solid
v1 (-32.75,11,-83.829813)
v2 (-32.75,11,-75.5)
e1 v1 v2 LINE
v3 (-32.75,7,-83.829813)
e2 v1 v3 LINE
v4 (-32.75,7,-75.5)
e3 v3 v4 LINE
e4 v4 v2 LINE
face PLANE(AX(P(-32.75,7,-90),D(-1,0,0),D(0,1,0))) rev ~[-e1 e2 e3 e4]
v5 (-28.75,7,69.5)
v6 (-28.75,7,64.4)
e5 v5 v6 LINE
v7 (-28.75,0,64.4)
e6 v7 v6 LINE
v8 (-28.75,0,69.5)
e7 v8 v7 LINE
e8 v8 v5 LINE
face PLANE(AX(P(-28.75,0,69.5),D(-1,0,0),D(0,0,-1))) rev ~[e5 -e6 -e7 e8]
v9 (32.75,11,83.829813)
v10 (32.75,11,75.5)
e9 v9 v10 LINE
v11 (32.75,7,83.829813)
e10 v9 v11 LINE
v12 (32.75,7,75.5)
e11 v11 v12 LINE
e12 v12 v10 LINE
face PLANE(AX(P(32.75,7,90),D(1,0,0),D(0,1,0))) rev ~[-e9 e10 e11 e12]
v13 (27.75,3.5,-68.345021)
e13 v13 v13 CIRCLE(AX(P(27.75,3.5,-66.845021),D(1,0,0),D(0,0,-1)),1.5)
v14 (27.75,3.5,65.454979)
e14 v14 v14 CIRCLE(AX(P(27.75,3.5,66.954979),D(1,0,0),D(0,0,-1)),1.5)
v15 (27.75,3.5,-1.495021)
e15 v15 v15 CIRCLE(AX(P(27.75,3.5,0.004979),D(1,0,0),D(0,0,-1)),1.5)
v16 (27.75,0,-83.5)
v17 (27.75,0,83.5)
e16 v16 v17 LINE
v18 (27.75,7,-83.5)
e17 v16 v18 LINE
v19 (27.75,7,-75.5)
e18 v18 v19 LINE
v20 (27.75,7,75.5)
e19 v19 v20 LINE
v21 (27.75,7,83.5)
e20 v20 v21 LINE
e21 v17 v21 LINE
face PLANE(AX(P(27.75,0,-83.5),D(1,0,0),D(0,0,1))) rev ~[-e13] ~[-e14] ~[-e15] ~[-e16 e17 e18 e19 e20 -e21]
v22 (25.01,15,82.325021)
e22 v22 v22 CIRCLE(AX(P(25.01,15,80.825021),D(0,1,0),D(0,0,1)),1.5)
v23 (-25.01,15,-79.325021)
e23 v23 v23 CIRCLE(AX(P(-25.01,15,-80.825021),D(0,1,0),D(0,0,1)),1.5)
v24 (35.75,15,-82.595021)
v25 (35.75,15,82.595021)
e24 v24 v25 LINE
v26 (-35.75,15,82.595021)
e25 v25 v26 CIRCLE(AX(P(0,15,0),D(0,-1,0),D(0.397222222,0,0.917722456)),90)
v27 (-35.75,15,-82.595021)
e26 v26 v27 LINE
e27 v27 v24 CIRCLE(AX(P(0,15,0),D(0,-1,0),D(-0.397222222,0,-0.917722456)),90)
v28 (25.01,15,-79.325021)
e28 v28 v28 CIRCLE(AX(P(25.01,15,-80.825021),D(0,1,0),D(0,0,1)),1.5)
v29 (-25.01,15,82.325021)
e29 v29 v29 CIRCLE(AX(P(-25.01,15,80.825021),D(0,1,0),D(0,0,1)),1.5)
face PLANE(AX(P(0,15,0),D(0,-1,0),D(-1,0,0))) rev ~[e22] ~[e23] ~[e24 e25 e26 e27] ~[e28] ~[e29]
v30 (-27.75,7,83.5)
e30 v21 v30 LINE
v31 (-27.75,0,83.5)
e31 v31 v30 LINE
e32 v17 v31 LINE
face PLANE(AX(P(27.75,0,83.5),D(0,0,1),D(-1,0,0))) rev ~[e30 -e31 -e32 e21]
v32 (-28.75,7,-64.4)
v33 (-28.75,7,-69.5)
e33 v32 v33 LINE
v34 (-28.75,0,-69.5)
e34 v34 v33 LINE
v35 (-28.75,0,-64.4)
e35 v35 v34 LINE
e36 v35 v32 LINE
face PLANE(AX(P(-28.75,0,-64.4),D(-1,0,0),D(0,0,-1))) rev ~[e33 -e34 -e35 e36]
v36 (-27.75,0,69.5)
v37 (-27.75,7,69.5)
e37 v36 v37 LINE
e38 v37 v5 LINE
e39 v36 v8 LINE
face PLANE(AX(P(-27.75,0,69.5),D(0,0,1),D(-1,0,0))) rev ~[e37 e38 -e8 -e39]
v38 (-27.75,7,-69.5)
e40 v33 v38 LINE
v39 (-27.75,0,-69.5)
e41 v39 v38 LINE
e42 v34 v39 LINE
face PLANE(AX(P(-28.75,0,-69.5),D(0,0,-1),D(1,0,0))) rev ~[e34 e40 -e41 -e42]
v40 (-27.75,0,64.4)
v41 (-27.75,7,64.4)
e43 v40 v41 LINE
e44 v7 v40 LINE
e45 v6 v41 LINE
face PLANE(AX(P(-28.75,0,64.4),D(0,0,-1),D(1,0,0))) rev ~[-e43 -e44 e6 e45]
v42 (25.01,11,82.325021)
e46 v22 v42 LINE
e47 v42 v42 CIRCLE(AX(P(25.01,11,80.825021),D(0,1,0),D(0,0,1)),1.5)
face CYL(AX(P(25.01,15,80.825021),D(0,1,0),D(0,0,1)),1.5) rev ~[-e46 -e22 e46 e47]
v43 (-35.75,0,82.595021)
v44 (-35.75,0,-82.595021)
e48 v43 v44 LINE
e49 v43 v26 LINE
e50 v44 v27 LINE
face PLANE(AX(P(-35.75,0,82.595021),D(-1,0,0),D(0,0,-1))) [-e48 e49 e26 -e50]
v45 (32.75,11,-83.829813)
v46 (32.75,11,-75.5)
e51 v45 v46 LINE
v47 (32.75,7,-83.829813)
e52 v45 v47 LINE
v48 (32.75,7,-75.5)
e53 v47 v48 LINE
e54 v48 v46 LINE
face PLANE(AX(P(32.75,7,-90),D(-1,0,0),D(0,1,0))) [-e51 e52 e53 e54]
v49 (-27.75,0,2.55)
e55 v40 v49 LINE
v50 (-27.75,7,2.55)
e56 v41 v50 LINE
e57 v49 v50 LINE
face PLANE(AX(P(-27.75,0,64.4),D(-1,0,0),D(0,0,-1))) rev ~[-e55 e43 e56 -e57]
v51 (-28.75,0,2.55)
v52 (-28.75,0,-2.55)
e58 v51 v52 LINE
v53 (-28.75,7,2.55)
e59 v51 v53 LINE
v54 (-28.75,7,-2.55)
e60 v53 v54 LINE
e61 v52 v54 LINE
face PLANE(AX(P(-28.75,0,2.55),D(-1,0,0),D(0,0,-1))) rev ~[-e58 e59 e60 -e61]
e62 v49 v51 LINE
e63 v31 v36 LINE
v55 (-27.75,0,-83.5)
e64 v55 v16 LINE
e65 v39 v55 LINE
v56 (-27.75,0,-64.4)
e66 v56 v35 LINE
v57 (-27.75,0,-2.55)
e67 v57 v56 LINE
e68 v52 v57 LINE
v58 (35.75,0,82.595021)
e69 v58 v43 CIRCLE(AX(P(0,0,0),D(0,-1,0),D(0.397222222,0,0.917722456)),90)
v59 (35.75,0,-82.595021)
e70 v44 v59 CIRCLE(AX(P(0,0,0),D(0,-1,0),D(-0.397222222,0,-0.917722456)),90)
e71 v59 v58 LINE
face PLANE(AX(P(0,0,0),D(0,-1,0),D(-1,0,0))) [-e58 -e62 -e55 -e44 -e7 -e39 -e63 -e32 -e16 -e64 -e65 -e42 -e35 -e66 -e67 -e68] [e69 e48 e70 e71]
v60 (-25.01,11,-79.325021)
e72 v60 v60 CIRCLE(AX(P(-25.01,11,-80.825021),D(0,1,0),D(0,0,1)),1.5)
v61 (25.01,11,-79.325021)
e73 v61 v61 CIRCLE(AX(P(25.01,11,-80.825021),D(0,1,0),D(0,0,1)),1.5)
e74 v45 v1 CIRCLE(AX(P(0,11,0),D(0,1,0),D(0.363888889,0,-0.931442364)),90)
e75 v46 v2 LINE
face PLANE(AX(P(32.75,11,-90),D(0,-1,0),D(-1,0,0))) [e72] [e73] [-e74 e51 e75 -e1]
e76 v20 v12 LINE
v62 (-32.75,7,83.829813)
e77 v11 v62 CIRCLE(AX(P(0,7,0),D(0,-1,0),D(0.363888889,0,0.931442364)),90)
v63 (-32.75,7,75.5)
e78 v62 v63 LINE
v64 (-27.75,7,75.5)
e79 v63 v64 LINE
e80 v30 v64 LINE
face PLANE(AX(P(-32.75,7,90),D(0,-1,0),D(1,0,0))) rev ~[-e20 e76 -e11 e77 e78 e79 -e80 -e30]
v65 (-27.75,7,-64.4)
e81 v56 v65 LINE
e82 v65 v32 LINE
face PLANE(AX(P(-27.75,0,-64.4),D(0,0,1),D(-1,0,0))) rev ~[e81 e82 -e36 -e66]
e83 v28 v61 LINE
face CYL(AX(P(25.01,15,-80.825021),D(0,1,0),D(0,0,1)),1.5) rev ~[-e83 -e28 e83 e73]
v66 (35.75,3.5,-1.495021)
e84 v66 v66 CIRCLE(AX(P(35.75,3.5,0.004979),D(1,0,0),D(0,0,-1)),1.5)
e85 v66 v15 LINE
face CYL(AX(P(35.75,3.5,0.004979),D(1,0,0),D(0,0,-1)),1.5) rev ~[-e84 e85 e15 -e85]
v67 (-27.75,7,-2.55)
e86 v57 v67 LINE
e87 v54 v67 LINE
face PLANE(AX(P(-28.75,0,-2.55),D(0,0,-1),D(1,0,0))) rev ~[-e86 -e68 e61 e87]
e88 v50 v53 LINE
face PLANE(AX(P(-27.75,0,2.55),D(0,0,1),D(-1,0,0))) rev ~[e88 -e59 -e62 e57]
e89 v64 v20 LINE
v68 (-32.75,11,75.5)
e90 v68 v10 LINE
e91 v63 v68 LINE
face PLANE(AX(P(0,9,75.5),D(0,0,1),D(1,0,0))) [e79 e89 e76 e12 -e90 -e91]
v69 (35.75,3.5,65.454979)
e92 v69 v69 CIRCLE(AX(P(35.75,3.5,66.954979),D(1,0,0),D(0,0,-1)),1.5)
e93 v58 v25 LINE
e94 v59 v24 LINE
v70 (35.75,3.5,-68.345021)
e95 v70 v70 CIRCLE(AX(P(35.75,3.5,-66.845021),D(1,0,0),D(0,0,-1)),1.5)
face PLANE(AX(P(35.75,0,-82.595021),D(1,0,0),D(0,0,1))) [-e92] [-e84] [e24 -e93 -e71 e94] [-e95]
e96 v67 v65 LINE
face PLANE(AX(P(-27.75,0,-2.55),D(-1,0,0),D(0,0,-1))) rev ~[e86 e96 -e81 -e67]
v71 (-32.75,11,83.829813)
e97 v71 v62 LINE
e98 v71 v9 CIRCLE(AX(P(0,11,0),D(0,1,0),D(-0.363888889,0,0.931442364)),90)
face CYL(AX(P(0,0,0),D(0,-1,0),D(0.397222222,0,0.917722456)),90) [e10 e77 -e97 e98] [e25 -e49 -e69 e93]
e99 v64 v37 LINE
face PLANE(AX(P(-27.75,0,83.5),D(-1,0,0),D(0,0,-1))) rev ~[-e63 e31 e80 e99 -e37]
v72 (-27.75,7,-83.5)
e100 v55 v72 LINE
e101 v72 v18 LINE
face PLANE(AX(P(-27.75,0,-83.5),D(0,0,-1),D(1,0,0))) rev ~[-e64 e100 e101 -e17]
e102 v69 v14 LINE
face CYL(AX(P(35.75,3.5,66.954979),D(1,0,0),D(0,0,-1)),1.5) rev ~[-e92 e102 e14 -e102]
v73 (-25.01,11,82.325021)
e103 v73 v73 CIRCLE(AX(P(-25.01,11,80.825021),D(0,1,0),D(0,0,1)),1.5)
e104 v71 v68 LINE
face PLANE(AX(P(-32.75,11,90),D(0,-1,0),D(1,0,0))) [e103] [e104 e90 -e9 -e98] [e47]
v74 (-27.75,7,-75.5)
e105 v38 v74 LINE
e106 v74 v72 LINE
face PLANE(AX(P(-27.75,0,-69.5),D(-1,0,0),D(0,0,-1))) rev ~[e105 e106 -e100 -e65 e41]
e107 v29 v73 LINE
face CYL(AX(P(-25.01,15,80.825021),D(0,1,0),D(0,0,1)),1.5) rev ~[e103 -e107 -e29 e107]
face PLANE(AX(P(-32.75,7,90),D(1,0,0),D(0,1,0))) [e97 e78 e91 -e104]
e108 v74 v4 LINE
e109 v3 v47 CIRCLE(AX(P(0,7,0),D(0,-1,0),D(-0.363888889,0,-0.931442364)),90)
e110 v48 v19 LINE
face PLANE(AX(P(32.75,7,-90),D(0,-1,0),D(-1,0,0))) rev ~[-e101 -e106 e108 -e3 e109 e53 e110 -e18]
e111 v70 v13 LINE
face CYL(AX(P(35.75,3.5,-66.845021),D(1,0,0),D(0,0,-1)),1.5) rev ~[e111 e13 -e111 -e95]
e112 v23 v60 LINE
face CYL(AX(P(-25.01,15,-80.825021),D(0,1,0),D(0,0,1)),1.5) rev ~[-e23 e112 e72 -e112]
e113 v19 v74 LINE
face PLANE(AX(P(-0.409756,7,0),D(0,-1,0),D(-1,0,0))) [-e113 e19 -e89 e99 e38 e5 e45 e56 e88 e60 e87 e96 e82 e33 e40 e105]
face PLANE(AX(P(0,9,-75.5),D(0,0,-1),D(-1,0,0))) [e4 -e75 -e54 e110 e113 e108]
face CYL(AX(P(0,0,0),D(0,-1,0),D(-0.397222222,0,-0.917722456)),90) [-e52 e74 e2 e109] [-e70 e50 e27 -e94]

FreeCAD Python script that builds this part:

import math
import FreeCAD as App
import Part
import Sketcher
from FreeCAD import Vector


def add_polygon(sketch, points):
    """Adds a closed chain of lines whose ends are joined by coincident constraints."""
    first, n = sketch.GeometryCount, len(points)
    for a, b in zip(points, points[1:] + points[:1]):
        sketch.addGeometry(Part.LineSegment(App.Vector(*a, 0), App.Vector(*b, 0)), False)
    for i in range(n):
        sketch.addConstraint(Sketcher.Constraint("Coincident", first + i, 2, first + (i + 1) % n, 1))

doc = App.newDocument("Part")
body = doc.addObject("PartDesign::Body", "Body")

# Sketch on XZ plane
sketch1 = body.newObject("Sketcher::SketchObject", "Sketch")
sketch1.AttachmentSupport = (doc.getObject("XZ_Plane"), [""])
sketch1.MapMode = "FlatFace"
sketch1.addGeometry(Part.LineSegment(Vector(-35.75, -82.595021, 0), Vector(-35.75, 82.595021, 0)), False)
sketch1.addGeometry(Part.ArcOfCircle(Part.Circle(Vector(0, 0, 0), Vector(0, 0, 1), 90), math.radians(66.595359), math.radians(113.404641)), False)
sketch1.addGeometry(Part.LineSegment(Vector(35.75, 82.595021, 0), Vector(35.75, -82.595021, 0)), False)
sketch1.addGeometry(Part.ArcOfCircle(Part.Circle(Vector(0, 0, 0), Vector(0, 0, 1), 90), math.radians(-113.404641), math.radians(-66.595359)), False)
sketch1.addConstraint(Sketcher.Constraint("Coincident", 0, 2, 1, 2))
sketch1.addConstraint(Sketcher.Constraint("Coincident", 1, 1, 2, 1))
sketch1.addConstraint(Sketcher.Constraint("Coincident", 2, 2, 3, 2))
sketch1.addConstraint(Sketcher.Constraint("Coincident", 3, 1, 0, 1))
sketch1.addConstraint(Sketcher.Constraint("Vertical", 0))
sketch1.addConstraint(Sketcher.Constraint("Vertical", 2))
sketch1.addConstraint(Sketcher.Constraint("Coincident", 1, 3, -1, 1))
sketch1.addConstraint(Sketcher.Constraint("Coincident", 3, 3, -1, 1))
sketch1.addConstraint(Sketcher.Constraint("Equal", 1, 3))
sketch1.addConstraint(Sketcher.Constraint("Horizontal", 0, 2, 1, 1))
sketch1.addConstraint(Sketcher.Constraint("Radius", 1, 90.0))
sketch1.addConstraint(Sketcher.Constraint("DistanceX", 0, 2, 1, 1, 71.5))
pad1 = body.newObject("PartDesign::Pad", "Pad")
pad1.Profile = sketch1
pad1.Length = 15
pad1.Reversed = True

# Sketch on XZ plane
sketch2 = body.newObject("Sketcher::SketchObject", "Sketch001")
sketch2.AttachmentSupport = (doc.getObject("XZ_Plane"), [""])
sketch2.MapMode = "FlatFace"
add_polygon(sketch2, [(-27.75, -69.5), (-27.75, -83.5), (27.75, -83.5), (27.75, 83.5), (-27.75, 83.5), (-27.75, 69.5), (-28.75, 69.5), (-28.75, 64.4), (-27.75, 64.4), (-27.75, 2.55), (-28.75, 2.55), (-28.75, -2.55), (-27.75, -2.55), (-27.75, -64.4), (-28.75, -64.4), (-28.75, -69.5)])  # lines 0-15
sketch2.addConstraint(Sketcher.Constraint("Vertical", 0))
sketch2.addConstraint(Sketcher.Constraint("Horizontal", 1))
sketch2.addConstraint(Sketcher.Constraint("Vertical", 2))
sketch2.addConstraint(Sketcher.Constraint("Horizontal", 3))
sketch2.addConstraint(Sketcher.Constraint("Vertical", 4))
sketch2.addConstraint(Sketcher.Constraint("Horizontal", 5))
sketch2.addConstraint(Sketcher.Constraint("Vertical", 6))
sketch2.addConstraint(Sketcher.Constraint("Horizontal", 7))
sketch2.addConstraint(Sketcher.Constraint("Vertical", 8))
sketch2.addConstraint(Sketcher.Constraint("Horizontal", 9))
sketch2.addConstraint(Sketcher.Constraint("Vertical", 10))
sketch2.addConstraint(Sketcher.Constraint("Horizontal", 11))
sketch2.addConstraint(Sketcher.Constraint("Vertical", 12))
sketch2.addConstraint(Sketcher.Constraint("Horizontal", 13))
sketch2.addConstraint(Sketcher.Constraint("Vertical", 14))
sketch2.addConstraint(Sketcher.Constraint("Horizontal", 15))
sketch2.addConstraint(Sketcher.Constraint("Symmetric", 0, 2, 2, 2, -1, 1))
sketch2.addConstraint(Sketcher.Constraint("Symmetric", 8, 2, 11, 2, -1))
sketch2.addConstraint(Sketcher.Constraint("Symmetric", 6, 2, 13, 2, -1))
sketch2.addConstraint(Sketcher.Constraint("Symmetric", 4, 2, 15, 2, -1))
sketch2.addConstraint(Sketcher.Constraint("Vertical", 4, 2, 7, 2))
sketch2.addConstraint(Sketcher.Constraint("Vertical", 6, 2, 9, 2))
sketch2.addConstraint(Sketcher.Constraint("Equal", 6, 10))
sketch2.addConstraint(Sketcher.Constraint("DistanceX", 5, 2, 5, 1, 1.0))
sketch2.addConstraint(Sketcher.Constraint("DistanceY", 0, 2, 0, 1, 14.0))
sketch2.addConstraint(Sketcher.Constraint("DistanceY", 2, 1, 2, 2, 167.0))
sketch2.addConstraint(Sketcher.Constraint("DistanceX", 1, 1, 1, 2, 55.5))
sketch2.addConstraint(Sketcher.Constraint("DistanceY", 6, 2, 6, 1, 5.1))
pocket1 = body.newObject("PartDesign::Pocket", "Pocket")
pocket1.Profile = sketch2
pocket1.Length = 7

# Sketch on XY plane
sketch3 = body.newObject("Sketcher::SketchObject", "Sketch002")
sketch3.AttachmentSupport = (doc.getObject("XY_Plane"), [""])
sketch3.MapMode = "FlatFace"
sketch3.AttachmentOffset = App.Placement(Vector(0, 0, -90), App.Rotation())
add_polygon(sketch3, [(32.75, 11), (32.75, 7), (-32.75, 7), (-32.75, 11)])  # lines 0-3
sketch3.addConstraint(Sketcher.Constraint("Vertical", 0))
sketch3.addConstraint(Sketcher.Constraint("Horizontal", 1))
sketch3.addConstraint(Sketcher.Constraint("Vertical", 2))
sketch3.addConstraint(Sketcher.Constraint("Horizontal", 3))
sketch3.addConstraint(Sketcher.Constraint("DistanceY", 0, 2, 0, 1, 4.0))
sketch3.addConstraint(Sketcher.Constraint("DistanceX", 1, 2, 1, 1, 65.5))
sketch3.addConstraint(Sketcher.Constraint("DistanceY", -1, 1, 0, 2, 7.0))
sketch3.addConstraint(Sketcher.Constraint("DistanceX", -1, 1, 0, 2, 32.75))
pocket2 = body.newObject("PartDesign::Pocket", "Pocket001")
pocket2.Profile = sketch3
pocket2.Length = 14.5
pocket2.Reversed = True

# Sketch on XY plane
sketch4 = body.newObject("Sketcher::SketchObject", "Sketch003")
sketch4.AttachmentSupport = (doc.getObject("XY_Plane"), [""])
sketch4.MapMode = "FlatFace"
sketch4.AttachmentOffset = App.Placement(Vector(0, 0, 90), App.Rotation())
add_polygon(sketch4, [(-32.75, 11), (-32.75, 7), (32.75, 7), (32.75, 11)])  # lines 0-3
sketch4.addConstraint(Sketcher.Constraint("Vertical", 0))
sketch4.addConstraint(Sketcher.Constraint("Horizontal", 1))
sketch4.addConstraint(Sketcher.Constraint("Vertical", 2))
sketch4.addConstraint(Sketcher.Constraint("Horizontal", 3))
sketch4.addConstraint(Sketcher.Constraint("DistanceY", 0, 2, 0, 1, 4.0))
sketch4.addConstraint(Sketcher.Constraint("DistanceX", 1, 1, 1, 2, 65.5))
sketch4.addConstraint(Sketcher.Constraint("DistanceY", -1, 1, 0, 2, 7.0))
sketch4.addConstraint(Sketcher.Constraint("DistanceX", 0, 2, -1, 1, 32.75))
pocket3 = body.newObject("PartDesign::Pocket", "Pocket002")
pocket3.Profile = sketch4
pocket3.Length = 14.5

# Sketch on XZ plane
sketch5 = body.newObject("Sketcher::SketchObject", "Sketch004")
sketch5.AttachmentSupport = (doc.getObject("XZ_Plane"), [""])
sketch5.MapMode = "FlatFace"
sketch5.AttachmentOffset = App.Placement(Vector(0, 0, -15), App.Rotation())
sketch5.addGeometry(Part.Circle(Vector(-25.01, -80.825021, 0), Vector(0, 0, 1), 1.5), False)
sketch5.addGeometry(Part.Circle(Vector(25.01, -80.825021, 0), Vector(0, 0, 1), 1.5), False)
sketch5.addGeometry(Part.Circle(Vector(-25.01, 80.825021, 0), Vector(0, 0, 1), 1.5), False)
sketch5.addGeometry(Part.Circle(Vector(25.01, 80.825021, 0), Vector(0, 0, 1), 1.5), False)
sketch5.addConstraint(Sketcher.Constraint("Equal", 0, 1))
sketch5.addConstraint(Sketcher.Constraint("Equal", 1, 2))
sketch5.addConstraint(Sketcher.Constraint("Equal", 2, 3))
sketch5.addConstraint(Sketcher.Constraint("Symmetric", 1, 3, 2, 3, -1, 1))
sketch5.addConstraint(Sketcher.Constraint("Symmetric", 0, 3, 3, 3, -1, 1))
sketch5.addConstraint(Sketcher.Constraint("Symmetric", 0, 3, 1, 3, -2))
sketch5.addConstraint(Sketcher.Constraint("Diameter", 0, 3.0))
sketch5.addConstraint(Sketcher.Constraint("DistanceX", 0, 3, -1, 1, 25.01))
sketch5.addConstraint(Sketcher.Constraint("DistanceY", 0, 3, -1, 1, 80.825021))
pocket4 = body.newObject("PartDesign::Pocket", "Pocket003")
pocket4.Profile = sketch5
pocket4.Type = "ThroughAll"
pocket4.Reversed = True

# Sketch on YZ plane
sketch6 = body.newObject("Sketcher::SketchObject", "Sketch005")
sketch6.AttachmentSupport = (doc.getObject("YZ_Plane"), [""])
sketch6.MapMode = "FlatFace"
sketch6.AttachmentOffset = App.Placement(Vector(0, 0, 35.75), App.Rotation())
sketch6.addGeometry(Part.Circle(Vector(3.5, 66.954979, 0), Vector(0, 0, 1), 1.5), False)
sketch6.addGeometry(Part.Circle(Vector(3.5, 0.004979, 0), Vector(0, 0, 1), 1.5), False)
sketch6.addGeometry(Part.Circle(Vector(3.5, -66.845021, 0), Vector(0, 0, 1), 1.5), False)
sketch6.addConstraint(Sketcher.Constraint("Equal", 0, 1))
sketch6.addConstraint(Sketcher.Constraint("Equal", 1, 2))
sketch6.addConstraint(Sketcher.Constraint("Vertical", 0, 3, 1, 3))
sketch6.addConstraint(Sketcher.Constraint("Vertical", 1, 3, 2, 3))
sketch6.addConstraint(Sketcher.Constraint("Diameter", 0, 3.0))
sketch6.addConstraint(Sketcher.Constraint("DistanceX", -1, 1, 0, 3, 3.5))
sketch6.addConstraint(Sketcher.Constraint("DistanceY", 2, 3, 0, 3, 133.8))
sketch6.addConstraint(Sketcher.Constraint("DistanceY", 1, 3, 0, 3, 66.95))
sketch6.addConstraint(Sketcher.Constraint("DistanceY", -1, 1, 0, 3, 66.954979))
pocket5 = body.newObject("PartDesign::Pocket", "Pocket004")
pocket5.Profile = sketch6
pocket5.Length = 14.5

doc.recompute()
